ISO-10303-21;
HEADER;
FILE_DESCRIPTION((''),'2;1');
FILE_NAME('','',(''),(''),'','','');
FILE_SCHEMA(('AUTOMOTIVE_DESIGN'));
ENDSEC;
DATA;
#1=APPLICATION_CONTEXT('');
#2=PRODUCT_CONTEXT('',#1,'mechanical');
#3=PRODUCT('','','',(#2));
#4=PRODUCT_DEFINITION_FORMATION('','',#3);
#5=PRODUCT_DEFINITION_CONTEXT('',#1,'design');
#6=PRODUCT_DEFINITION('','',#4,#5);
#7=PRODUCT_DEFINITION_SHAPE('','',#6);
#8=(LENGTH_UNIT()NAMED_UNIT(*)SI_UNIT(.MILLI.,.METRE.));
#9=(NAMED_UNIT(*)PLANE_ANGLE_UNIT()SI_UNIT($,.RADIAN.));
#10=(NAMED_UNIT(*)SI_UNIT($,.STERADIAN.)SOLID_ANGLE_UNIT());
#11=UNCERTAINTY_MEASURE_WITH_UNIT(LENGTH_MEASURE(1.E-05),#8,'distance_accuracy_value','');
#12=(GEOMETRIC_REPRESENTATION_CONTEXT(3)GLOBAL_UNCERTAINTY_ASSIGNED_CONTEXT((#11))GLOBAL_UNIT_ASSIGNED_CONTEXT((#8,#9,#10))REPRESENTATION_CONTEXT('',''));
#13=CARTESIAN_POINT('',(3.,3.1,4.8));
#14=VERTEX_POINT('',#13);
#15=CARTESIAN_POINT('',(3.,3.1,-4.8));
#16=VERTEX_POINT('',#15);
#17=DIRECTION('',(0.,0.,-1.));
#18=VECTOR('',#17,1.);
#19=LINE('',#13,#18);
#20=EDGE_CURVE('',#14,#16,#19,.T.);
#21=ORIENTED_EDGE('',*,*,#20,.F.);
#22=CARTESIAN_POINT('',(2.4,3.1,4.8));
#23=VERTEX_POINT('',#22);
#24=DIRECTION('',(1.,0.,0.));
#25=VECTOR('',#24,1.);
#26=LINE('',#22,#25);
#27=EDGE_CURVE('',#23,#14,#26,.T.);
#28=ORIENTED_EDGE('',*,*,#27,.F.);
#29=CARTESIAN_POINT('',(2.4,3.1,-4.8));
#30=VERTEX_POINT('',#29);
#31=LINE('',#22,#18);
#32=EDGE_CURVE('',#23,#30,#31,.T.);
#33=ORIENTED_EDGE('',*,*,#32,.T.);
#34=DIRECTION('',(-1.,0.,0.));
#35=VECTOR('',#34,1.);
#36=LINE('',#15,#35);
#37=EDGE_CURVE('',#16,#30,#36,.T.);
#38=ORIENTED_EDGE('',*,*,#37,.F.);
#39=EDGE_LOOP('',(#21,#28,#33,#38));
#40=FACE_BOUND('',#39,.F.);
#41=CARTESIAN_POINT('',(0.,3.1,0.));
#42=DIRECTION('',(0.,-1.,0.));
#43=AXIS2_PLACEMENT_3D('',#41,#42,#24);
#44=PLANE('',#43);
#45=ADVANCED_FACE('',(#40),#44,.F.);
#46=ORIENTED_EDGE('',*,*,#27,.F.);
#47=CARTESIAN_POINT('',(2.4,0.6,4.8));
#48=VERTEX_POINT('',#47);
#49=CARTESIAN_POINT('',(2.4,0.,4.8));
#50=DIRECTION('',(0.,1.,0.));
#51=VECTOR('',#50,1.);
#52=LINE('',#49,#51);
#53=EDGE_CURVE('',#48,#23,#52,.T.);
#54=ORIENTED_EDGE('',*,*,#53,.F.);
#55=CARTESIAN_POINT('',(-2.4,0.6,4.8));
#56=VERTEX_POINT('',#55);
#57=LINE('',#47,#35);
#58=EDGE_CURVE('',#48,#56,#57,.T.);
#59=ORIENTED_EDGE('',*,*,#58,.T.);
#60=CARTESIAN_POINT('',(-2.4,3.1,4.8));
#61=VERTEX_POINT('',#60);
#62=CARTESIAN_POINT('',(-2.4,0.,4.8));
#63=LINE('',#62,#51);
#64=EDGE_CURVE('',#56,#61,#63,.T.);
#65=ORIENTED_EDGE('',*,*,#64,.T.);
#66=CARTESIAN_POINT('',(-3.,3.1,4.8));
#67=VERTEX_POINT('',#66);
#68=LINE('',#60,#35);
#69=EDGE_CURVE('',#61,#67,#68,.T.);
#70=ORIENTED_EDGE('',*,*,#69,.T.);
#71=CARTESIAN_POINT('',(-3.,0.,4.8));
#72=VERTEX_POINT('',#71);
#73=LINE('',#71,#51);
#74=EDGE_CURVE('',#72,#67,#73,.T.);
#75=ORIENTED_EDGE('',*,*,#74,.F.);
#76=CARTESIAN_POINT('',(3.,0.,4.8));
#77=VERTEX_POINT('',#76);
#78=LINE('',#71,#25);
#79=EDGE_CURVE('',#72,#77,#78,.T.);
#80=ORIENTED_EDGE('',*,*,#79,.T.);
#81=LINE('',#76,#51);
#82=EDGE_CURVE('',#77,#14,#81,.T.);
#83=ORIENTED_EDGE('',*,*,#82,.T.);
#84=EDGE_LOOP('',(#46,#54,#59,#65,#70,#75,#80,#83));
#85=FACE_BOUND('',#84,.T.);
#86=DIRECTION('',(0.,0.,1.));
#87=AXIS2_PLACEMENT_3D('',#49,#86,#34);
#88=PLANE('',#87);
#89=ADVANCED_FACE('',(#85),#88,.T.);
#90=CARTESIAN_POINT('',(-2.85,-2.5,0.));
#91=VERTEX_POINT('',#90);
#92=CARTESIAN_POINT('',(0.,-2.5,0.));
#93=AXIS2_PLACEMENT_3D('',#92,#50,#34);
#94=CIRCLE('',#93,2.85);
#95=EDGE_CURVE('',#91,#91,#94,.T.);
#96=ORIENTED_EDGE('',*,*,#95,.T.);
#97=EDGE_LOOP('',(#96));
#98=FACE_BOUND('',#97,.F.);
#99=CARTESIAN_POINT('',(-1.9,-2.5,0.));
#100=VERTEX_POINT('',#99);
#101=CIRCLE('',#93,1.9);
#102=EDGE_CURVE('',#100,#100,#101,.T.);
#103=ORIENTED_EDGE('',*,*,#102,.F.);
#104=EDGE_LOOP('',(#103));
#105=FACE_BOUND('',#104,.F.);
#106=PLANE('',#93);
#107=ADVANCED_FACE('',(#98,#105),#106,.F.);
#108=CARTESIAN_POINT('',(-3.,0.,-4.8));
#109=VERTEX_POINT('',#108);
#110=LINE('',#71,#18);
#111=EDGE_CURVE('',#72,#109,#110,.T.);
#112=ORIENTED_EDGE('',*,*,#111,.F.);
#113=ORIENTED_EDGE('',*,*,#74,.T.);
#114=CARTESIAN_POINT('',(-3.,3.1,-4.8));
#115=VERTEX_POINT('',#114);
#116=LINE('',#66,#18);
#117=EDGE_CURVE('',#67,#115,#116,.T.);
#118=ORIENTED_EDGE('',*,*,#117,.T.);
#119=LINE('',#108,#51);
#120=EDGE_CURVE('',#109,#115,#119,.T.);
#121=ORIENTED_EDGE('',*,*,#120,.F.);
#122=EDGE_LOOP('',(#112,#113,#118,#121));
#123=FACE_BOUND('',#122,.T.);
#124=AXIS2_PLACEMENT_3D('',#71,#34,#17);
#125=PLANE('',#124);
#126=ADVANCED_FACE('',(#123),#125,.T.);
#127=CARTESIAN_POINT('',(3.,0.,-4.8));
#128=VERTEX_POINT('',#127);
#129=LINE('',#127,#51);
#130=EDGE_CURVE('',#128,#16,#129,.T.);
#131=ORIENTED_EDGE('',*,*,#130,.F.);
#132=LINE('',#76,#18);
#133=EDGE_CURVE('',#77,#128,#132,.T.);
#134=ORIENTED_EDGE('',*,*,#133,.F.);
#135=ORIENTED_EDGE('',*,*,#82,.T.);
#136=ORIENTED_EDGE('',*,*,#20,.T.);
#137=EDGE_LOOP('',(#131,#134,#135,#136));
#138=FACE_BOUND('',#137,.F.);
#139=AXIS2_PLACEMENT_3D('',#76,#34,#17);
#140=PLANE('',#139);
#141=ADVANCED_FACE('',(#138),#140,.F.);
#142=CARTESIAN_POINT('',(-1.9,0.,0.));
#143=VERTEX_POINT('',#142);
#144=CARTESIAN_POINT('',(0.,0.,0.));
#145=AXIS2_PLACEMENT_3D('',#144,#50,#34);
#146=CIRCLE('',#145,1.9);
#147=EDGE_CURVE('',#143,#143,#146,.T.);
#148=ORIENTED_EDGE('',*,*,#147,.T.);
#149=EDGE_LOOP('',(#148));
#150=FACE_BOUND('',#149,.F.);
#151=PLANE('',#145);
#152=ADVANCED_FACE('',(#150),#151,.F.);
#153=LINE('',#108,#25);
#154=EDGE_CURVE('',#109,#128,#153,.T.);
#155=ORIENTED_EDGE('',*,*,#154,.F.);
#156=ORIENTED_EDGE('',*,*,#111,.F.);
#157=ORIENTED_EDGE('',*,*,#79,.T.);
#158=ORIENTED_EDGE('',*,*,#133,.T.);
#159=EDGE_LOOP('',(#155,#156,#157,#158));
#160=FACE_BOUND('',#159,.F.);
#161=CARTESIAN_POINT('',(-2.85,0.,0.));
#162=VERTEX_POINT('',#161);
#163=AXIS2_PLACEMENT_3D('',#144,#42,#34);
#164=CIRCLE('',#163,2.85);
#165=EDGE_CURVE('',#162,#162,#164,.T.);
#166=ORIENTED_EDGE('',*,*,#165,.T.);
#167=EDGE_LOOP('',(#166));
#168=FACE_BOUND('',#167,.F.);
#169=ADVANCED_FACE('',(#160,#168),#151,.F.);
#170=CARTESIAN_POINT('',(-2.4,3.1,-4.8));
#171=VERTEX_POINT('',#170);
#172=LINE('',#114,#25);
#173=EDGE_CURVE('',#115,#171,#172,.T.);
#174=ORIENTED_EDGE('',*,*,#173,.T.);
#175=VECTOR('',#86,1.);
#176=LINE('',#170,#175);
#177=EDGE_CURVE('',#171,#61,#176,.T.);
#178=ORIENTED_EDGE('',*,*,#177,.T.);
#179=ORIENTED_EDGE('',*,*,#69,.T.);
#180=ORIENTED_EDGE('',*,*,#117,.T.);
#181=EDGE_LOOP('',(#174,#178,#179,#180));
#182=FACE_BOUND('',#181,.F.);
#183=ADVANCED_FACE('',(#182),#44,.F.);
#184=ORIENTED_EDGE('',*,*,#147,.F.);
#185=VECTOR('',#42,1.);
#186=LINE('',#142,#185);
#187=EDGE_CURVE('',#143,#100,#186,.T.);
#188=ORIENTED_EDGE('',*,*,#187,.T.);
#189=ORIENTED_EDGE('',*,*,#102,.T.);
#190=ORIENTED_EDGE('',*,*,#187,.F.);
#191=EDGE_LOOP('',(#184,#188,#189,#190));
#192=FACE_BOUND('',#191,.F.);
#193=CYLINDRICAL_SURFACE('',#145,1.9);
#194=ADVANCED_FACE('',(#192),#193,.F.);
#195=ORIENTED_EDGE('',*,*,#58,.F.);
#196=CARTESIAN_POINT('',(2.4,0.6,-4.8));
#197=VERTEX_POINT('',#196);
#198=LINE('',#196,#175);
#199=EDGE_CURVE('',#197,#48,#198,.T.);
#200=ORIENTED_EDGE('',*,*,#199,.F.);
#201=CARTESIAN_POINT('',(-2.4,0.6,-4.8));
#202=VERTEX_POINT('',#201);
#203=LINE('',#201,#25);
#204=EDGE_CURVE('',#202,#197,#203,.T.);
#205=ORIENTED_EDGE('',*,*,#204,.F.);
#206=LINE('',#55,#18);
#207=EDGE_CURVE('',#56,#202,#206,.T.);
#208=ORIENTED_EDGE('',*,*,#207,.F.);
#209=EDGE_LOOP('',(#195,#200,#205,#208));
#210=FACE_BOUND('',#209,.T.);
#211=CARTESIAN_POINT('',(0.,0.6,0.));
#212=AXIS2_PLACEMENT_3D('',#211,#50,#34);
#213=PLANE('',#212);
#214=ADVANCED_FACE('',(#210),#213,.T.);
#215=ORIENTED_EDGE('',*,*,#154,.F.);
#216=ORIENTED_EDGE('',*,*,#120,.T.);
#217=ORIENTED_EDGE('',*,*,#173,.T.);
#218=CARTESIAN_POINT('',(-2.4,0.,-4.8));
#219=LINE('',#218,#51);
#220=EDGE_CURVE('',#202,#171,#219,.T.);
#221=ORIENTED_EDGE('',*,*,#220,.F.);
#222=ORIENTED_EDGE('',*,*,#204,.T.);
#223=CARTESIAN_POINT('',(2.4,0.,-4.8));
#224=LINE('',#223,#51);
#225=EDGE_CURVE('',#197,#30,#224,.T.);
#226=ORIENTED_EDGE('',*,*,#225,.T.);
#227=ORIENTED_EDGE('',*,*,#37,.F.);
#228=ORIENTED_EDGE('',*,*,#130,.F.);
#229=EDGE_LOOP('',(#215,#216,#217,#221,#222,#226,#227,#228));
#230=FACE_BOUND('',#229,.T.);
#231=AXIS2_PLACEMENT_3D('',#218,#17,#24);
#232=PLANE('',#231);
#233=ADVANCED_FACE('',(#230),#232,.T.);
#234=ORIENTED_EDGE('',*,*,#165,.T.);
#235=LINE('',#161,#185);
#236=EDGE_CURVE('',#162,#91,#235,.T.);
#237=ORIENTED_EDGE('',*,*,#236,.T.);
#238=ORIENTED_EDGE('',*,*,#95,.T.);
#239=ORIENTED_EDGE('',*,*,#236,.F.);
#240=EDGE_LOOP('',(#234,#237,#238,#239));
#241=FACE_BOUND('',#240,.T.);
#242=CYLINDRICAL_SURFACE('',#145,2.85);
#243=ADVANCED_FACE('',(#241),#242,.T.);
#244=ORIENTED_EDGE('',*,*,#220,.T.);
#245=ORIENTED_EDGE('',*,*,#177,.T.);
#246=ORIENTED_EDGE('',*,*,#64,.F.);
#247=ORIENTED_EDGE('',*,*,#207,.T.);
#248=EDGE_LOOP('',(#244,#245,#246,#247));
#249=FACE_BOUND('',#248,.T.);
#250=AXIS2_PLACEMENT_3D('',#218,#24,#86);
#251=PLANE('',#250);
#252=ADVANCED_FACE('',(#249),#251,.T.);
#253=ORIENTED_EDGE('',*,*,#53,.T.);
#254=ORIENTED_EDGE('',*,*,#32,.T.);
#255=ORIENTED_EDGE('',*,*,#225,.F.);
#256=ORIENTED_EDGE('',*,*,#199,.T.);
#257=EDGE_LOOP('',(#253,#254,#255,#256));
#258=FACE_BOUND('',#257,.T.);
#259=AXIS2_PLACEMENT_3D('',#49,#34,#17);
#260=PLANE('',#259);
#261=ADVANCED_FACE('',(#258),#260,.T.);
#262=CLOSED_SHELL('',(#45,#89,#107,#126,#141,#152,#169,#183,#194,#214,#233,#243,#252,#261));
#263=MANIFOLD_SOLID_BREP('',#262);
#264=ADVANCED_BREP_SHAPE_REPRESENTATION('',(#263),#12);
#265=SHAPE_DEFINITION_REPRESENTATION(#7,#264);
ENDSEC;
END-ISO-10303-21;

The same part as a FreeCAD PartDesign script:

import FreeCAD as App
import Part
import Sketcher
Q = App.Units.Quantity

doc = App.newDocument("Part")
body = doc.addObject("PartDesign::Body", "Body")

sketch1 = doc.addObject("Sketcher::SketchObject", "Sketch")
body.addObject(sketch1)
sketch1.AttachmentSupport = (doc.XZ_Plane, [""])
sketch1.MapMode = "FlatFace"
sketch1.addGeometry([
    Part.LineSegment(App.Vector(-2.4, 4.8, 0), App.Vector(2.4, 4.8, 0)),
    Part.LineSegment(App.Vector(2.4, 4.8, 0), App.Vector(2.4, -4.8, 0)),
    Part.LineSegment(App.Vector(2.4, -4.8, 0), App.Vector(-2.4, -4.8, 0)),
    Part.LineSegment(App.Vector(-2.4, -4.8, 0), App.Vector(-2.4, 4.8, 0)),
], False)
sketch1.addConstraint([
    Sketcher.Constraint("Coincident", 0, 2, 1, 1),
    Sketcher.Constraint("Coincident", 1, 2, 2, 1),
    Sketcher.Constraint("Coincident", 2, 2, 3, 1),
    Sketcher.Constraint("Coincident", 3, 2, 0, 1),
    Sketcher.Constraint("Horizontal", 0),
    Sketcher.Constraint("Vertical", 1),
    Sketcher.Constraint("Horizontal", 2),
    Sketcher.Constraint("Vertical", 3),
    Sketcher.Constraint("Symmetric", 0, 2, 2, 2, -1, 1),
    Sketcher.Constraint("DistanceX", 0, 1, 0, 2, Q("4.8 mm")),
    Sketcher.Constraint("DistanceY", 1, 2, 1, 1, Q("9.6 mm")),
])
pad1 = doc.addObject("PartDesign::Pad", "Pad")
body.addObject(pad1)
pad1.Profile = sketch1
pad1.Length = 0.6
pad1.Reversed = True

sketch2 = doc.addObject("Sketcher::SketchObject", "Sketch001")
body.addObject(sketch2)
sketch2.AttachmentSupport = (doc.XZ_Plane, [""])
sketch2.MapMode = "FlatFace"
sketch2.addGeometry([
    Part.LineSegment(App.Vector(2.4, 4.8, 0), App.Vector(2.4, -4.8, 0)),
    Part.LineSegment(App.Vector(2.4, -4.8, 0), App.Vector(3, -4.8, 0)),
    Part.LineSegment(App.Vector(3, -4.8, 0), App.Vector(3, 4.8, 0)),
    Part.LineSegment(App.Vector(3, 4.8, 0), App.Vector(2.4, 4.8, 0)),
    Part.LineSegment(App.Vector(-3, -4.8, 0), App.Vector(-2.4, -4.8, 0)),
    Part.LineSegment(App.Vector(-2.4, -4.8, 0), App.Vector(-2.4, 4.8, 0)),
    Part.LineSegment(App.Vector(-2.4, 4.8, 0), App.Vector(-3, 4.8, 0)),
    Part.LineSegment(App.Vector(-3, 4.8, 0), App.Vector(-3, -4.8, 0)),
], False)
sketch2.addConstraint([
    Sketcher.Constraint("Coincident", 0, 2, 1, 1),
    Sketcher.Constraint("Coincident", 1, 2, 2, 1),
    Sketcher.Constraint("Coincident", 2, 2, 3, 1),
    Sketcher.Constraint("Coincident", 3, 2, 0, 1),
    Sketcher.Constraint("Coincident", 4, 2, 5, 1),
    Sketcher.Constraint("Coincident", 5, 2, 6, 1),
    Sketcher.Constraint("Coincident", 6, 2, 7, 1),
    Sketcher.Constraint("Coincident", 7, 2, 4, 1),
    Sketcher.Constraint("Vertical", 0),
    Sketcher.Constraint("Horizontal", 1),
    Sketcher.Constraint("Vertical", 2),
    Sketcher.Constraint("Horizontal", 3),
    Sketcher.Constraint("Horizontal", 4),
    Sketcher.Constraint("Vertical", 5),
    Sketcher.Constraint("Horizontal", 6),
    Sketcher.Constraint("Vertical", 7),
    Sketcher.Constraint("Symmetric", 3, 2, 4, 2, -1, 1),
    Sketcher.Constraint("Symmetric", 1, 2, 6, 2, -1, 1),
    Sketcher.Constraint("Horizontal", 1, 2, 4, 2),
    Sketcher.Constraint("DistanceX", 1, 1, 1, 2, Q("0.6 mm")),
    Sketcher.Constraint("DistanceY", 0, 2, 0, 1, Q("9.6 mm")),
    Sketcher.Constraint("DistanceX", -1, 1, 1, 2, Q("3 mm")),
])
pad2 = doc.addObject("PartDesign::Pad", "Pad001")
body.addObject(pad2)
pad2.Profile = sketch2
pad2.Length = 3.1
pad2.Reversed = True

sketch3 = doc.addObject("Sketcher::SketchObject", "Sketch002")
body.addObject(sketch3)
sketch3.AttachmentSupport = (doc.XZ_Plane, [""])
sketch3.MapMode = "FlatFace"
sketch3.addGeometry([
    Part.Circle(App.Vector(0, 0, 0), App.Vector(0, 0, 1), 2.85),
    Part.Circle(App.Vector(0, 0, 0), App.Vector(0, 0, 1), 1.9),
], False)
sketch3.addConstraint([
    Sketcher.Constraint("Coincident", 0, 3, -1, 1),
    Sketcher.Constraint("Coincident", 1, 3, -1, 1),
    Sketcher.Constraint("Diameter", 0, Q("5.7 mm")),
    Sketcher.Constraint("Diameter", 1, Q("3.8 mm")),
])
pad3 = doc.addObject("PartDesign::Pad", "Pad002")
body.addObject(pad3)
pad3.Profile = sketch3
pad3.Length = 2.5

doc.recompute()
